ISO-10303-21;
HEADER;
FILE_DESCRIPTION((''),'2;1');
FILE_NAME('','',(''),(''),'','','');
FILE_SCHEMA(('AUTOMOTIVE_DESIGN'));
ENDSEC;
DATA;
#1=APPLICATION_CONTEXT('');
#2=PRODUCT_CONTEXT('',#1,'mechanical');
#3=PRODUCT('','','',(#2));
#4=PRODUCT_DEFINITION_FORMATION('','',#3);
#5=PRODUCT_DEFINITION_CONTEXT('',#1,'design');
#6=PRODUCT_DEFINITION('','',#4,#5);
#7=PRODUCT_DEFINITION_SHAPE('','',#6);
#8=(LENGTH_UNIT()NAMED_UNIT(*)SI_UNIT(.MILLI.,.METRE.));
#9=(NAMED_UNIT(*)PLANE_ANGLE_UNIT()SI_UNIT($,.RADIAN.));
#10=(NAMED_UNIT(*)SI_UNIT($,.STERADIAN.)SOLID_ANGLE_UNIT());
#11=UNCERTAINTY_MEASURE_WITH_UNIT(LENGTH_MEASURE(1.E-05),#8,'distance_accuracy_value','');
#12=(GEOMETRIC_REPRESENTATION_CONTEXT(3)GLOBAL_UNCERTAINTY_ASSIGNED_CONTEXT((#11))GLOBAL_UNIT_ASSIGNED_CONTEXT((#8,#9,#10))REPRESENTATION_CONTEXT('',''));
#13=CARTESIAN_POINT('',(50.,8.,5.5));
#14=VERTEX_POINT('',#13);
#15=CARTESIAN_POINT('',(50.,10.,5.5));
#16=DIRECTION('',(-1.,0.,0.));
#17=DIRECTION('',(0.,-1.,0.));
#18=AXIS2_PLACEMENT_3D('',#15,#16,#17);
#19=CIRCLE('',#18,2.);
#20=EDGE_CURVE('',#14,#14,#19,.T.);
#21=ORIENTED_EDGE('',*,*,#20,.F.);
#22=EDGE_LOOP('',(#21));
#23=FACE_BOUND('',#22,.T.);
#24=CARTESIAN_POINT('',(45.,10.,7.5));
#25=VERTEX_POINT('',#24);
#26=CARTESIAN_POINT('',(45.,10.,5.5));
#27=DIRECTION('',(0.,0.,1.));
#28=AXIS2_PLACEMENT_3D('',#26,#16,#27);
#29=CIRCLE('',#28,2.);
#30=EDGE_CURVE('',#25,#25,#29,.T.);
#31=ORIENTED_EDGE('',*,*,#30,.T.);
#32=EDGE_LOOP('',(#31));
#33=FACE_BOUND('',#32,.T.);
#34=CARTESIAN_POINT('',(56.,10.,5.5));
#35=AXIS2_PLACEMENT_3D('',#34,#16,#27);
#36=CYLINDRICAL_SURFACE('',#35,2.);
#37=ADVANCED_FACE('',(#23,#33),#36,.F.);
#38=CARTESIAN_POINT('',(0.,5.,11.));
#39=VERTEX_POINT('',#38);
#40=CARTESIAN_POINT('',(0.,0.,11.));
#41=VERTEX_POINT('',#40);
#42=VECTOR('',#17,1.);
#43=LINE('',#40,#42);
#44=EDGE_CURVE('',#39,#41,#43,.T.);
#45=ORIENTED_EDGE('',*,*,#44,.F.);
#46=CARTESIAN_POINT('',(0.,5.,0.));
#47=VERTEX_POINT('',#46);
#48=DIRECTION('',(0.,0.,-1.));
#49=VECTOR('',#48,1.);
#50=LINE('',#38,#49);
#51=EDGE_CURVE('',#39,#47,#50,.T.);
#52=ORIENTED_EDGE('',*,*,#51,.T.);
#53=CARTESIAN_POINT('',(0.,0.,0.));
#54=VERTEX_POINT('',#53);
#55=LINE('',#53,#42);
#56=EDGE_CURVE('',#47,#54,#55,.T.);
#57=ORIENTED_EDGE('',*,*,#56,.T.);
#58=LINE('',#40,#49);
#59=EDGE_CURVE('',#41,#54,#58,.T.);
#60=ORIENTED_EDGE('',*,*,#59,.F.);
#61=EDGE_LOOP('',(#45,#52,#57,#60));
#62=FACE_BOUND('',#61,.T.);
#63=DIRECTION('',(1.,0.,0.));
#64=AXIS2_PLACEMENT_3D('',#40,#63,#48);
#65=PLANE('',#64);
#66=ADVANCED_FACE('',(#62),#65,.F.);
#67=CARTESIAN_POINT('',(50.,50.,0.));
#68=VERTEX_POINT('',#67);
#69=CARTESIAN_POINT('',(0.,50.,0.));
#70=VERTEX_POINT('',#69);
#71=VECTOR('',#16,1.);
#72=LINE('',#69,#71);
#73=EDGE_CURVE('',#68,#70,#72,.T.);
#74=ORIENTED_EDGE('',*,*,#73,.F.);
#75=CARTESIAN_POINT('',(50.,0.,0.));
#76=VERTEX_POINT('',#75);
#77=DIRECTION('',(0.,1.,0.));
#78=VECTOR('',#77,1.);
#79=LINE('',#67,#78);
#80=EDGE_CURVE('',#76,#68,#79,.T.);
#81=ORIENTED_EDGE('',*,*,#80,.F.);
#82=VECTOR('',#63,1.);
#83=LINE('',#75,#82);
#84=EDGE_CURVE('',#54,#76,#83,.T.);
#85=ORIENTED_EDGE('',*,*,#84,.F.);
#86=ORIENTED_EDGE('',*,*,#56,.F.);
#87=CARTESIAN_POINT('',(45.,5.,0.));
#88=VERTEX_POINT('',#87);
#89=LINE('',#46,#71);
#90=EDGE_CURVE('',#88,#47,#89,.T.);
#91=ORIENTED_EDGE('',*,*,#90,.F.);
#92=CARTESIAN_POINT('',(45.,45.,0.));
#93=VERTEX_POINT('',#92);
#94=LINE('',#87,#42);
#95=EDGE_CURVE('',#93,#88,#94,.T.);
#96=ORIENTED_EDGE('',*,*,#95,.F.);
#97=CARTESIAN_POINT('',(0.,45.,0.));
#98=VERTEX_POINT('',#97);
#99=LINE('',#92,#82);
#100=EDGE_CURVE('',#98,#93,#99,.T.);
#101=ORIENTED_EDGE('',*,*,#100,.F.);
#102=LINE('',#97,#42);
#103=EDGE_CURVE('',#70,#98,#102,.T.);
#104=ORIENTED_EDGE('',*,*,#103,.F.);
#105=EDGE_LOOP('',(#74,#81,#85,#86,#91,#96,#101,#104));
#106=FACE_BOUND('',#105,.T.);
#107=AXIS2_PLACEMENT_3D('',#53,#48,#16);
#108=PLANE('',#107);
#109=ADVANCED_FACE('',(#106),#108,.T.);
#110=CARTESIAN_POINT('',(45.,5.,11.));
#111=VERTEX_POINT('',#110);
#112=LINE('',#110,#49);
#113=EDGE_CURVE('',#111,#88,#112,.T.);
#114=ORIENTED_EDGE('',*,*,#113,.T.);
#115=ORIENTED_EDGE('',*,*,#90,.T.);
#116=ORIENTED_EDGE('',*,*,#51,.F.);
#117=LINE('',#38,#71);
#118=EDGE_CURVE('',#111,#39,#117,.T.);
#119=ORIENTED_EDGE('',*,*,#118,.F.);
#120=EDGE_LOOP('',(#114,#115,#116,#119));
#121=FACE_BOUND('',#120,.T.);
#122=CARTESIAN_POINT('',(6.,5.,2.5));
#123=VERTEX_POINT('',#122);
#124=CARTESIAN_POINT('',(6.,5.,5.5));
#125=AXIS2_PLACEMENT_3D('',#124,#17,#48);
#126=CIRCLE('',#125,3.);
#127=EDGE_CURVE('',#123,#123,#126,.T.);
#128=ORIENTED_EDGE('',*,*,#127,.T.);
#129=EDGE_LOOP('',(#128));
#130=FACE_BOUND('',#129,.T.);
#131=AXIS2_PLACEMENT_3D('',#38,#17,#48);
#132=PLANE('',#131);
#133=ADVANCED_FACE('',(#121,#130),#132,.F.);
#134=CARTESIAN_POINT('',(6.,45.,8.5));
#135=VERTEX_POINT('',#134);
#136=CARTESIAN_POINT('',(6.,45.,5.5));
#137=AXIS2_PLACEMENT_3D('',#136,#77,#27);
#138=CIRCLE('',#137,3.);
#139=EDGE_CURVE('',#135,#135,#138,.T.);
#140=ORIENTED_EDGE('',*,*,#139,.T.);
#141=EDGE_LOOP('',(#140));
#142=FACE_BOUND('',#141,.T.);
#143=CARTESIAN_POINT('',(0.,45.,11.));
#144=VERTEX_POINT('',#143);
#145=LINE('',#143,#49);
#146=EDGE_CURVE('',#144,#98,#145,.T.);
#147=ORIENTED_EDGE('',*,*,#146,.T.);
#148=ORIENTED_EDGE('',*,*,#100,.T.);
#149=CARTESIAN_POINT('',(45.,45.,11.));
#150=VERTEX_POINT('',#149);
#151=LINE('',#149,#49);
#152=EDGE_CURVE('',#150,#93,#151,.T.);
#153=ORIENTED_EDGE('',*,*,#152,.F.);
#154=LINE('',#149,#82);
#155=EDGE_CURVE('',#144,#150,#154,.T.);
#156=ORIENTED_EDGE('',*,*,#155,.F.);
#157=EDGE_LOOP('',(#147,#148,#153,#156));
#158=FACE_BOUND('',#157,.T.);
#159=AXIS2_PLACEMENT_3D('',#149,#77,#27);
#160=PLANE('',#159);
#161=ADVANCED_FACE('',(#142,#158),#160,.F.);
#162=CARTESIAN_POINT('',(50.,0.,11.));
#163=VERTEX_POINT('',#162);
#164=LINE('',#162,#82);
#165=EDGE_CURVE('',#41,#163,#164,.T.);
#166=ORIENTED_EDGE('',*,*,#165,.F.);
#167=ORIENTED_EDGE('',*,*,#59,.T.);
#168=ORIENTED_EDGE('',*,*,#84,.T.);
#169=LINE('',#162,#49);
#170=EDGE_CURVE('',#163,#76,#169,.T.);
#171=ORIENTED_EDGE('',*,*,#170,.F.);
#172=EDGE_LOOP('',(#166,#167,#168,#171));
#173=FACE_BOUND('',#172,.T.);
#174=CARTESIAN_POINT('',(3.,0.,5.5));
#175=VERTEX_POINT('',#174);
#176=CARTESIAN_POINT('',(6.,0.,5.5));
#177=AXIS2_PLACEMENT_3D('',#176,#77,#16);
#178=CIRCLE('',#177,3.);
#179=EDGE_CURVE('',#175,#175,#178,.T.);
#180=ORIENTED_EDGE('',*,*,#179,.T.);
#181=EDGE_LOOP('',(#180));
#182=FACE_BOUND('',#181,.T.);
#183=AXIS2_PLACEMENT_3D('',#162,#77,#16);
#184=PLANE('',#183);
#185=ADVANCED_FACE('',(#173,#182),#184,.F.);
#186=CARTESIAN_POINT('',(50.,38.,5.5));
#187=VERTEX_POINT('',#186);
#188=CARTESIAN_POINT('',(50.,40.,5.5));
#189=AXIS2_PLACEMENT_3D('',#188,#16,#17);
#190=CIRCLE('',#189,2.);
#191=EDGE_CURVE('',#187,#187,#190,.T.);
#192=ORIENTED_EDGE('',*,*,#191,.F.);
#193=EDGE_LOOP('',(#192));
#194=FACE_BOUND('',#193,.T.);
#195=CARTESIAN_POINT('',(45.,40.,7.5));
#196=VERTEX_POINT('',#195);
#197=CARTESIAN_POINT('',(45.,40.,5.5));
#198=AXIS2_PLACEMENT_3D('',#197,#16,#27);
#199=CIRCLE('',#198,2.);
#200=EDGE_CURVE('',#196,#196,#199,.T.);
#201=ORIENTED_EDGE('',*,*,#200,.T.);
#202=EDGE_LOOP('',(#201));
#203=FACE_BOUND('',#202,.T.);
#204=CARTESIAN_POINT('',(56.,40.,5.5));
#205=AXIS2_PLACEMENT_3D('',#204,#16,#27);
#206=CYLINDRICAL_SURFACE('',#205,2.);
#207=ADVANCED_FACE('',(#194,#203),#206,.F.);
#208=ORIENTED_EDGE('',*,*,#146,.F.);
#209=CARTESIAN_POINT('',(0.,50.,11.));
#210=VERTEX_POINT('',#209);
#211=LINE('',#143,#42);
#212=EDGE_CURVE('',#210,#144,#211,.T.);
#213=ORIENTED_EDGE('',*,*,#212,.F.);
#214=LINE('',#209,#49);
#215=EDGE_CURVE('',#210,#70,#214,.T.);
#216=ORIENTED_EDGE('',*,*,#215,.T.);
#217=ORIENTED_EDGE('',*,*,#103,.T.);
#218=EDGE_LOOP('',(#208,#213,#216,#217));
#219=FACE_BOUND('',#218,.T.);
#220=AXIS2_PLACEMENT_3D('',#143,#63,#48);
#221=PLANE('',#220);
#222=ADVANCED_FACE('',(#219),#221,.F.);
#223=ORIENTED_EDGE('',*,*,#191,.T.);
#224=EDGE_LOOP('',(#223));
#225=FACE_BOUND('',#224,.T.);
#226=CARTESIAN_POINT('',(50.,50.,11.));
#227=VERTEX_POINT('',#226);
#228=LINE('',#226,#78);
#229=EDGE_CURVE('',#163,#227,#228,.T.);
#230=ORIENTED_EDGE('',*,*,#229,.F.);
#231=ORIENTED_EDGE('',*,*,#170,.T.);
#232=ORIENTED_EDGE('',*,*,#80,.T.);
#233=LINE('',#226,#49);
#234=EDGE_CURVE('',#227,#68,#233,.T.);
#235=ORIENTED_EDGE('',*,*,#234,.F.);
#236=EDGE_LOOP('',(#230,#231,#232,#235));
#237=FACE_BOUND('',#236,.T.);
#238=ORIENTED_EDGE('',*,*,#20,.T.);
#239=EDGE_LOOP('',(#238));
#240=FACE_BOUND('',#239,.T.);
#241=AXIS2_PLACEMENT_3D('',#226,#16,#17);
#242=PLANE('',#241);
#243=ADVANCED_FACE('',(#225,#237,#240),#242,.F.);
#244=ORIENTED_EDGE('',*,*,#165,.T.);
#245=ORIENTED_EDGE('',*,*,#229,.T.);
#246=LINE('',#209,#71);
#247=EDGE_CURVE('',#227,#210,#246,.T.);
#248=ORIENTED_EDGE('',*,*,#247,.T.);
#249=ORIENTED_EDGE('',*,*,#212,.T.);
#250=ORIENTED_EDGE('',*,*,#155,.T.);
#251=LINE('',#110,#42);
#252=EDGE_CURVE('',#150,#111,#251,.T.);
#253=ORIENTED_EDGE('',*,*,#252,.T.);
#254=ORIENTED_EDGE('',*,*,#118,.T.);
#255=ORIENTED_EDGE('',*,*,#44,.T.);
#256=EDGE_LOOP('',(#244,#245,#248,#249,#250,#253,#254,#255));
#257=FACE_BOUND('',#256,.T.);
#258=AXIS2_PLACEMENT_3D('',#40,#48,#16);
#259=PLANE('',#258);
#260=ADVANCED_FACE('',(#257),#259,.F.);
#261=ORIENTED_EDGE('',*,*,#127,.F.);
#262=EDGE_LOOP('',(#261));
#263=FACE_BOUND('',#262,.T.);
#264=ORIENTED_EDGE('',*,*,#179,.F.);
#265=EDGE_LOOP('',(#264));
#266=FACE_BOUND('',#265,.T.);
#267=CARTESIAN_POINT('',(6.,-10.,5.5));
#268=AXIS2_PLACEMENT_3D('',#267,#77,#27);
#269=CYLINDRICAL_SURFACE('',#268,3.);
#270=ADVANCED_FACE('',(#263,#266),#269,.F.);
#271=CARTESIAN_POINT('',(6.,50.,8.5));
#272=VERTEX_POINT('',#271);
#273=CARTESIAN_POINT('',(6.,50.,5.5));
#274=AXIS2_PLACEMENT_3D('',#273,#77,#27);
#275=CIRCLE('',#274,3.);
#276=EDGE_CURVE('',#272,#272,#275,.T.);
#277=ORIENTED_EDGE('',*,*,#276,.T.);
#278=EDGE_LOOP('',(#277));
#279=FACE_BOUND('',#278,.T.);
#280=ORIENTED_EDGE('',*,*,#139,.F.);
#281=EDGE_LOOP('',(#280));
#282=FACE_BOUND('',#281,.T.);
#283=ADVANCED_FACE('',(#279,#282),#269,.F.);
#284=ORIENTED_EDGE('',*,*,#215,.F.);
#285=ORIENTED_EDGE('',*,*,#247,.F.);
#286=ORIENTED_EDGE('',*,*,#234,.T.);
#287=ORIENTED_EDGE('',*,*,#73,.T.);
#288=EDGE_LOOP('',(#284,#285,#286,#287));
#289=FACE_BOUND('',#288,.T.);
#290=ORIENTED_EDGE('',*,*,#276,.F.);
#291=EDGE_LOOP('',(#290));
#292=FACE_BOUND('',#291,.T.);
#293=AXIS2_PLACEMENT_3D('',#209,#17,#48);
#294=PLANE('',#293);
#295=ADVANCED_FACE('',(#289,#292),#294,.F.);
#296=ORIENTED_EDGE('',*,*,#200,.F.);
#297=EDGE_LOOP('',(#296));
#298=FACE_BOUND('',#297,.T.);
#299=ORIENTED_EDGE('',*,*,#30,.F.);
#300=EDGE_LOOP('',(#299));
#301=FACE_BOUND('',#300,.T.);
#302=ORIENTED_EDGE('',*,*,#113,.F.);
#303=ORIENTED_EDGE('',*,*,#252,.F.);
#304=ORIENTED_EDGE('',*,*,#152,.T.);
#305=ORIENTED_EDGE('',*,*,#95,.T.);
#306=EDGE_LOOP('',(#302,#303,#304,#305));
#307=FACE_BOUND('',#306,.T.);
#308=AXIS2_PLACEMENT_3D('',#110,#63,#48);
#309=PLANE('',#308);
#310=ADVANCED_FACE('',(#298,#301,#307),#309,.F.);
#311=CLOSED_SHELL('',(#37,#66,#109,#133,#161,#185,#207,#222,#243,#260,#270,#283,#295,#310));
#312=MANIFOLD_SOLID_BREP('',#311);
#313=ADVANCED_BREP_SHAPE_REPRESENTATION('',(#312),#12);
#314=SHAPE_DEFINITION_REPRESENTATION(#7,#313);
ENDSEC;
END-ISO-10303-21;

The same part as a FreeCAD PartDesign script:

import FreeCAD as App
import Part
import Sketcher

V = App.Vector
Q = App.Units.Quantity


def add_polygon(sketch, points):
    """Adds a closed chain of lines whose ends are joined by coincident constraints."""
    first, n = sketch.GeometryCount, len(points)
    for a, b in zip(points, points[1:] + points[:1]):
        sketch.addGeometry(Part.LineSegment(App.Vector(*a, 0), App.Vector(*b, 0)), False)
    for i in range(n):
        sketch.addConstraint(Sketcher.Constraint("Coincident", first + i, 2, first + (i + 1) % n, 1))

doc = App.newDocument("Part")
body = doc.addObject("PartDesign::Body", "Body")

sketch1 = body.newObject("Sketcher::SketchObject", "Sketch")
sketch1.AttachmentSupport = (doc.getObject("XY_Plane"), [""])
sketch1.MapMode = "FlatFace"
add_polygon(sketch1, [(50, 50), (0, 50), (0, 45), (45, 45), (45, 5), (0, 5), (0, 0), (50, 0)])
sketch1.addConstraint([
    Sketcher.Constraint("Horizontal", 0),
    Sketcher.Constraint("Vertical", 1),
    Sketcher.Constraint("Horizontal", 2),
    Sketcher.Constraint("Vertical", 3),
    Sketcher.Constraint("Horizontal", 4),
    Sketcher.Constraint("Vertical", 5),
    Sketcher.Constraint("Horizontal", 6),
    Sketcher.Constraint("Vertical", 7),
    Sketcher.Constraint("Coincident", 5, 2, -1, 1),
    Sketcher.Constraint("PointOnObject", 0, 2, -2),
    Sketcher.Constraint("Equal", 1, 5),
    Sketcher.Constraint("Equal", 6, 7),
    Sketcher.Constraint("DistanceX", 0, 2, 0, 1, Q("50 mm")),
    Sketcher.Constraint("DistanceX", 2, 1, 2, 2, Q("45 mm")),
    Sketcher.Constraint("DistanceY", 1, 2, 1, 1, Q("5 mm")),
])
pad1 = body.newObject("PartDesign::Pad", "Pad")
pad1.Profile = sketch1
pad1.Length = 11

sketch2 = body.newObject("Sketcher::SketchObject", "Sketch001")
sketch2.AttachmentSupport = (doc.getObject("XZ_Plane"), [""])
sketch2.MapMode = "FlatFace"
sketch2.AttachmentOffset = App.Placement(V(0, 0, -50), App.Rotation())
sketch2.addGeometry(Part.Circle(V(6, 5.5, 0), V(0, 0, 1), 3), False)
sketch2.addConstraint([
    Sketcher.Constraint("Diameter", 0, Q("6 mm")),
    Sketcher.Constraint("DistanceX", -1, 1, 0, 3, Q("6 mm")),
    Sketcher.Constraint("DistanceY", -1, 1, 0, 3, Q("5.5 mm")),
])
pocket1 = body.newObject("PartDesign::Pocket", "Pocket")
pocket1.Profile = sketch2
pocket1.Length = 60
pocket1.Reversed = True

sketch3 = body.newObject("Sketcher::SketchObject", "Sketch002")
sketch3.AttachmentSupport = (doc.getObject("YZ_Plane"), [""])
sketch3.MapMode = "FlatFace"
sketch3.AttachmentOffset = App.Placement(V(0, 0, 45), App.Rotation())
sketch3.addGeometry([
    Part.Circle(V(40, 5.5, 0), V(0, 0, 1), 2),
    Part.Circle(V(10, 5.5, 0), V(0, 0, 1), 2),
], False)
sketch3.addConstraint([
    Sketcher.Constraint("Equal", 0, 1),
    Sketcher.Constraint("Horizontal", 0, 3, 1, 3),
    Sketcher.Constraint("Diameter", 0, Q("4 mm")),
    Sketcher.Constraint("DistanceX", -1, 1, 0, 3, Q("40 mm")),
    Sketcher.Constraint("DistanceX", -1, 1, 1, 3, Q("10 mm")),
    Sketcher.Constraint("DistanceY", -1, 1, 0, 3, Q("5.5 mm")),
])
pocket2 = body.newObject("PartDesign::Pocket", "Pocket001")
pocket2.Profile = sketch3
pocket2.Length = 11
pocket2.Reversed = True

doc.recompute()
